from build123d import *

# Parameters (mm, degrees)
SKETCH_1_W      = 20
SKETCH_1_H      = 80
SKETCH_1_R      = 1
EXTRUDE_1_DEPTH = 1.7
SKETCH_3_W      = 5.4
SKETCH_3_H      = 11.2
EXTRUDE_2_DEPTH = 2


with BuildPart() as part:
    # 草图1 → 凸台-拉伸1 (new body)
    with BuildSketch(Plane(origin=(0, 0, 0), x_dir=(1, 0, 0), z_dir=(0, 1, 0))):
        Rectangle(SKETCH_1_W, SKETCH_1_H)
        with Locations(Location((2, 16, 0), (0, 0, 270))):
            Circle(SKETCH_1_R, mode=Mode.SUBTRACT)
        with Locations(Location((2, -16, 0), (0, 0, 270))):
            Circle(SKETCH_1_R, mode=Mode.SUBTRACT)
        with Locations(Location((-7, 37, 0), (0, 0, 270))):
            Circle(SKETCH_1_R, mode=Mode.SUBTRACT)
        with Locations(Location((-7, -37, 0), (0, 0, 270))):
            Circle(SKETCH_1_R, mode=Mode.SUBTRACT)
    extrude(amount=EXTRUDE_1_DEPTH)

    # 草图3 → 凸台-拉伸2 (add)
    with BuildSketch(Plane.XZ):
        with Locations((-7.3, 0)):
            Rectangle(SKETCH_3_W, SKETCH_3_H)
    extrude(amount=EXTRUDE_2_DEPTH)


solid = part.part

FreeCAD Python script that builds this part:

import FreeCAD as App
import Part
import Sketcher

V = App.Vector

doc = App.newDocument("Part")
body = doc.addObject("PartDesign::Body", "Body")

sketch1 = body.newObject("Sketcher::SketchObject", "Sketch")
sketch1.AttachmentSupport = (doc.getObject("XZ_Plane"), [""])
sketch1.MapMode = "FlatFace"
sketch1.addGeometry(Part.LineSegment(V(-10, -40, 0), V(-10, 40, 0)), False)
sketch1.addGeometry(Part.LineSegment(V(-10, 40, 0), V(10, 40, 0)), False)
sketch1.addGeometry(Part.LineSegment(V(10, 40, 0), V(10, -40, 0)), False)
sketch1.addGeometry(Part.LineSegment(V(10, -40, 0), V(-10, -40, 0)), False)
sketch1.addGeometry(Part.Circle(V(-7, 37, 0), V(0, 0, 1), 1), False)
sketch1.addGeometry(Part.Circle(V(2, 16, 0), V(0, 0, 1), 1), False)
sketch1.addGeometry(Part.Circle(V(-7, -37, 0), V(0, 0, 1), 1), False)
sketch1.addGeometry(Part.Circle(V(2, -16, 0), V(0, 0, 1), 1), False)
sketch1.addConstraint(Sketcher.Constraint("Coincident", 0, 2, 1, 1))
sketch1.addConstraint(Sketcher.Constraint("Coincident", 1, 2, 2, 1))
sketch1.addConstraint(Sketcher.Constraint("Coincident", 2, 2, 3, 1))
sketch1.addConstraint(Sketcher.Constraint("Coincident", 3, 2, 0, 1))
sketch1.addConstraint(Sketcher.Constraint("Vertical", 0))
sketch1.addConstraint(Sketcher.Constraint("Horizontal", 1))
sketch1.addConstraint(Sketcher.Constraint("Vertical", 2))
sketch1.addConstraint(Sketcher.Constraint("Horizontal", 3))
sketch1.addConstraint(Sketcher.Constraint("Equal", 4, 5))
sketch1.addConstraint(Sketcher.Constraint("Equal", 5, 6))
sketch1.addConstraint(Sketcher.Constraint("Equal", 6, 7))
sketch1.addConstraint(Sketcher.Constraint("Symmetric", 0, 2, 2, 2, -1, 1))
sketch1.addConstraint(Sketcher.Constraint("Symmetric", 4, 3, 6, 3, -1))
sketch1.addConstraint(Sketcher.Constraint("Symmetric", 5, 3, 7, 3, -1))
sketch1.addConstraint(Sketcher.Constraint("Diameter", 4, 2.0))
sketch1.addConstraint(Sketcher.Constraint("DistanceX", 1, 1, 1, 2, 20.0))
sketch1.addConstraint(Sketcher.Constraint("DistanceY", 0, 1, 0, 2, 80.0))
sketch1.addConstraint(Sketcher.Constraint("DistanceX", 4, 3, -1, 1, 7.0))
sketch1.addConstraint(Sketcher.Constraint("DistanceY", -1, 1, 4, 3, 37.0))
sketch1.addConstraint(Sketcher.Constraint("DistanceX", -1, 1, 5, 3, 2.0))
sketch1.addConstraint(Sketcher.Constraint("DistanceY", -1, 1, 5, 3, 16.0))
pad1 = body.newObject("PartDesign::Pad", "Pad")
pad1.Profile = sketch1
pad1.Length = 1.7
pad1.Reversed = True

sketch2 = body.newObject("Sketcher::SketchObject", "Sketch001")
sketch2.AttachmentSupport = (doc.getObject("XZ_Plane"), [""])
sketch2.MapMode = "FlatFace"
sketch2.addGeometry(Part.LineSegment(V(-10, 5.6, 0), V(-10, -5.6, 0)), False)
sketch2.addGeometry(Part.LineSegment(V(-10, -5.6, 0), V(-4.6, -5.6, 0)), False)
sketch2.addGeometry(Part.LineSegment(V(-4.6, -5.6, 0), V(-4.6, 5.6, 0)), False)
sketch2.addGeometry(Part.LineSegment(V(-4.6, 5.6, 0), V(-10, 5.6, 0)), False)
sketch2.addConstraint(Sketcher.Constraint("Coincident", 0, 2, 1, 1))
sketch2.addConstraint(Sketcher.Constraint("Coincident", 1, 2, 2, 1))
sketch2.addConstraint(Sketcher.Constraint("Coincident", 2, 2, 3, 1))
sketch2.addConstraint(Sketcher.Constraint("Coincident", 3, 2, 0, 1))
sketch2.addConstraint(Sketcher.Constraint("Vertical", 0))
sketch2.addConstraint(Sketcher.Constraint("Horizontal", 1))
sketch2.addConstraint(Sketcher.Constraint("Vertical", 2))
sketch2.addConstraint(Sketcher.Constraint("Horizontal", 3))
sketch2.addConstraint(Sketcher.Constraint("DistanceX", 1, 1, 1, 2, 5.4))
sketch2.addConstraint(Sketcher.Constraint("DistanceY", 0, 2, 0, 1, 11.2))
sketch2.addConstraint(Sketcher.Constraint("DistanceX", 0, 2, -1, 1, 10.0))
sketch2.addConstraint(Sketcher.Constraint("DistanceY", 0, 2, -1, 1, 5.6))
pad2 = body.newObject("PartDesign::Pad", "Pad001")
pad2.Profile = sketch2
pad2.Length = 2

doc.recompute()
